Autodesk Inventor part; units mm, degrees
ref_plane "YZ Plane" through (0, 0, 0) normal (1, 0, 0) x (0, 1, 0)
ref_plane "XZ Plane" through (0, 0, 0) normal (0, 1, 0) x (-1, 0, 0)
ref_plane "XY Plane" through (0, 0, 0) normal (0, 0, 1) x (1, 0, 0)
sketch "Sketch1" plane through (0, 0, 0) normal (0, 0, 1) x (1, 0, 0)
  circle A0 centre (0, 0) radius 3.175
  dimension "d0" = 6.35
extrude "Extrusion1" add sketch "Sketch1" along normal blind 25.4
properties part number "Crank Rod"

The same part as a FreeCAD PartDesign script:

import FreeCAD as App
import Part
import Sketcher
Q = App.Units.Quantity

doc = App.newDocument("Part")
body = doc.addObject("PartDesign::Body", "Body")

sketch1 = body.newObject("Sketcher::SketchObject", "Sketch")
sketch1.AttachmentSupport = (doc.getObject("XY_Plane"), [""])
sketch1.MapMode = "FlatFace"
sketch1.addGeometry(Part.Circle(App.Vector(0, 0, 0), App.Vector(0, 0, 1), 3.2), False)
sketch1.addConstraint([
    Sketcher.Constraint("Coincident", 0, 3, -1, 1),
    Sketcher.Constraint("Diameter", 0, Q("0.25 in")),
])
pad1 = body.newObject("PartDesign::Pad", "Pad")
pad1.Profile = sketch1
pad1.Length = Q("1 in")

doc.recompute()
